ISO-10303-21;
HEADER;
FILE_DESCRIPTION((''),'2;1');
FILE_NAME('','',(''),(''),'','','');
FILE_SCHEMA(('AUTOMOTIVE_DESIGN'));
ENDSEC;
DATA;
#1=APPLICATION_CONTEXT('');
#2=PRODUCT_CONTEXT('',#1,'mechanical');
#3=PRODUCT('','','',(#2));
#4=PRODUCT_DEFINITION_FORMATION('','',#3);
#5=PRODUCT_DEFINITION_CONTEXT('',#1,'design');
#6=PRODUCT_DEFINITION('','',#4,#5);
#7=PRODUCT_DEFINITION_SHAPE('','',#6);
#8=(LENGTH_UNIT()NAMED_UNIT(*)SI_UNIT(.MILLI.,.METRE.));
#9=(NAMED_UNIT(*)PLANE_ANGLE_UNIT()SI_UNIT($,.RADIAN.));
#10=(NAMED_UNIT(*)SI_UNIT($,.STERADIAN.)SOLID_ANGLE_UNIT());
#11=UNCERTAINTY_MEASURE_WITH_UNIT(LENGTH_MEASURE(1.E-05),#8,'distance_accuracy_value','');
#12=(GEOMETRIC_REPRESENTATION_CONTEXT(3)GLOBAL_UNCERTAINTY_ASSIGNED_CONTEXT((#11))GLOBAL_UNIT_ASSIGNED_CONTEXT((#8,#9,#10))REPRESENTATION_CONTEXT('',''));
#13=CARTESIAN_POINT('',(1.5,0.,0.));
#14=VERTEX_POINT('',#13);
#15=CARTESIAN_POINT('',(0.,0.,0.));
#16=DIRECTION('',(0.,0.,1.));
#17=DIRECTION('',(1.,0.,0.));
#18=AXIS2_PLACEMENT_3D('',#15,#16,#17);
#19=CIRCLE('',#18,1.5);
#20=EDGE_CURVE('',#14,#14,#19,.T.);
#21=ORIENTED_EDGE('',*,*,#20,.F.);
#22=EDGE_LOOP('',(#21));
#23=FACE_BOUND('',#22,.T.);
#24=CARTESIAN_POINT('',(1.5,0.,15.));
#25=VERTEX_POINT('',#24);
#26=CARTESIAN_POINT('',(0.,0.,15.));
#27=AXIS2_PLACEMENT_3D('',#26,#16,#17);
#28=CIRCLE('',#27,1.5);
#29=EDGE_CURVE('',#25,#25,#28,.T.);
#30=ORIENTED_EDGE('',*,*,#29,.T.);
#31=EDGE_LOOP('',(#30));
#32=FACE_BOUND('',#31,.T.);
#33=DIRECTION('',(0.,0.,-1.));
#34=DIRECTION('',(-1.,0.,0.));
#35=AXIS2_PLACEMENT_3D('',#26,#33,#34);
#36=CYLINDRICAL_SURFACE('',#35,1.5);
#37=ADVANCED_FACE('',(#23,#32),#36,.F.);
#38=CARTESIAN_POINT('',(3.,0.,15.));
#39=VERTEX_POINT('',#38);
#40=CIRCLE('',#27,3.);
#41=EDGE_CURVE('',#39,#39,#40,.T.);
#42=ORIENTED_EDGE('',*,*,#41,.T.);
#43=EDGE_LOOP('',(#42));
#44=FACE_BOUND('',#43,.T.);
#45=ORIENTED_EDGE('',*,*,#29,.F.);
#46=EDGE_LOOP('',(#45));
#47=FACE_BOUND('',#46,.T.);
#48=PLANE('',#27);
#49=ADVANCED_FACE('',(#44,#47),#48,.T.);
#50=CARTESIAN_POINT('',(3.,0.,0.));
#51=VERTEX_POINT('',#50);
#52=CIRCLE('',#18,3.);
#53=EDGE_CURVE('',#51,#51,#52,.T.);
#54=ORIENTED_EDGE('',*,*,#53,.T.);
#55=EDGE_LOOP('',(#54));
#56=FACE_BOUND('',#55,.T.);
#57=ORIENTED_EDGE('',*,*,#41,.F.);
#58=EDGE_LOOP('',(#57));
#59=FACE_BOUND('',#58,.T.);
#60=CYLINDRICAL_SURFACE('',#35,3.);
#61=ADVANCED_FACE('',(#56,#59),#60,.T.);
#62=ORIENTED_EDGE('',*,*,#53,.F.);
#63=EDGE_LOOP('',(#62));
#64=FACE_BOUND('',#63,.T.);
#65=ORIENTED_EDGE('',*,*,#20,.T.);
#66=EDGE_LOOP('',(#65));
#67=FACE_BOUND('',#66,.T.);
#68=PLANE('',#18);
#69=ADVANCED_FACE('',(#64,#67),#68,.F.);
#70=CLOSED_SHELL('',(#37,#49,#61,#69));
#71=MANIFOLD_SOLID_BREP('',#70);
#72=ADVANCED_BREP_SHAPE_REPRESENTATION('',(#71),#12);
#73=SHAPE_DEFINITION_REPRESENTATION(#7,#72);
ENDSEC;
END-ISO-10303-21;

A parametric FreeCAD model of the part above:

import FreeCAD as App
import Part
import Sketcher
from FreeCAD import Vector

doc = App.newDocument("Part")
body = doc.addObject("PartDesign::Body", "Body")

sketch1 = doc.addObject("Sketcher::SketchObject", "Sketch")
body.addObject(sketch1)
sketch1.AttachmentSupport = (doc.XY_Plane, [""])
sketch1.MapMode = "FlatFace"
sketch1.addGeometry([
    Part.Circle(Vector(0, 0, 0), Vector(0, 0, 1), 3),
    Part.Circle(Vector(0, 0, 0), Vector(0, 0, 1), 1.5),
], False)
sketch1.addConstraint([
    Sketcher.Constraint("Coincident", 0, 3, -1, 1),
    Sketcher.Constraint("Coincident", 1, 3, -1, 1),
    Sketcher.Constraint("Diameter", 0, 6.0),
    Sketcher.Constraint("Diameter", 1, 3.0),
])
pad1 = doc.addObject("PartDesign::Pad", "Pad")
body.addObject(pad1)
pad1.Profile = sketch1
pad1.Length = 15

doc.recompute()
